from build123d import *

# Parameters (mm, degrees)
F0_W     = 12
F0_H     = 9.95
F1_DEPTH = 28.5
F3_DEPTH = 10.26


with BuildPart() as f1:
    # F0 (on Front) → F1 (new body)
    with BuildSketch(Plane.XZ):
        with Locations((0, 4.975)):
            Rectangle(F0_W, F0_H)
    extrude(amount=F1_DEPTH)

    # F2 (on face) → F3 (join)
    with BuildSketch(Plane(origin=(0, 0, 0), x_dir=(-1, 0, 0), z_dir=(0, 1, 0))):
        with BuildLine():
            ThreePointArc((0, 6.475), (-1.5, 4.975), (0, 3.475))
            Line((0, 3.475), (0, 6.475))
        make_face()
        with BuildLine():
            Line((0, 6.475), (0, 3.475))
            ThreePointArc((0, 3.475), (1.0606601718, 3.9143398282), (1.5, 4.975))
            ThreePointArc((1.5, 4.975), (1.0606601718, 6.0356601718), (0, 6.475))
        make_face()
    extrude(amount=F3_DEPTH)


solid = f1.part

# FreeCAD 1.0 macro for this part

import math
import FreeCAD as App
import Part
import Sketcher

V = App.Vector
Q = App.Units.Quantity

doc = App.newDocument("Part")
body = doc.addObject("PartDesign::Body", "Body")

# Sketch on XZ plane
sketch1 = body.newObject("Sketcher::SketchObject", "Sketch")
sketch1.AttachmentSupport = (doc.getObject("XZ_Plane"), [""])
sketch1.MapMode = "FlatFace"
sketch1.addGeometry([
    Part.LineSegment(V(-6, 9.95, 0), V(-6, 0, 0)),
    Part.LineSegment(V(-6, 0, 0), V(6, 0, 0)),
    Part.LineSegment(V(6, 0, 0), V(6, 9.95, 0)),
    Part.LineSegment(V(6, 9.95, 0), V(-6, 9.95, 0)),
], False)
sketch1.addConstraint([
    Sketcher.Constraint("Coincident", 0, 2, 1, 1),
    Sketcher.Constraint("Coincident", 1, 2, 2, 1),
    Sketcher.Constraint("Coincident", 2, 2, 3, 1),
    Sketcher.Constraint("Coincident", 3, 2, 0, 1),
    Sketcher.Constraint("Vertical", 0),
    Sketcher.Constraint("Horizontal", 1),
    Sketcher.Constraint("Vertical", 2),
    Sketcher.Constraint("Horizontal", 3),
    Sketcher.Constraint("Symmetric", 0, 2, 1, 2, -1, 1),
    Sketcher.Constraint("DistanceX", 1, 1, 1, 2, Q("12 mm")),
    Sketcher.Constraint("DistanceY", 0, 2, 0, 1, Q("9.95 mm")),
])
pad1 = body.newObject("PartDesign::Pad", "Pad")
pad1.Profile = sketch1
pad1.Length = 28.5

# Sketch on XZ plane
sketch2 = body.newObject("Sketcher::SketchObject", "Sketch001")
sketch2.AttachmentSupport = (doc.getObject("XZ_Plane"), [""])
sketch2.MapMode = "FlatFace"
sketch2.addGeometry([
    Part.ArcOfCircle(Part.Circle(V(0, 4.975, 0), V(0, 0, 1), 1.5), math.radians(-90), math.radians(90)),
    Part.ArcOfCircle(Part.Circle(V(0, 4.975, 0), V(0, 0, 1), 1.5), math.radians(180), math.radians(270)),
    Part.ArcOfCircle(Part.Circle(V(0, 4.975, 0), V(0, 0, 1), 1.5), math.radians(90), math.radians(180)),
], False)
sketch2.addConstraint([
    Sketcher.Constraint("Tangent", 0, 1, 1, 2),
    Sketcher.Constraint("Tangent", 1, 1, 2, 2),
    Sketcher.Constraint("Tangent", 2, 1, 0, 2),
    Sketcher.Constraint("PointOnObject", 0, 3, -2),
    Sketcher.Constraint("PointOnObject", 0, 1, -2),
    Sketcher.Constraint("PointOnObject", 2, 1, -2),
    Sketcher.Constraint("Horizontal", 2, 3, 1, 1),
    Sketcher.Constraint("Radius", 0, Q("1.5 mm")),
    Sketcher.Constraint("DistanceY", -1, 1, 0, 3, Q("4.975 mm")),
])
pad2 = body.newObject("PartDesign::Pad", "Pad001")
pad2.Profile = sketch2
pad2.Length = 10.26
pad2.Reversed = True

doc.recompute()
